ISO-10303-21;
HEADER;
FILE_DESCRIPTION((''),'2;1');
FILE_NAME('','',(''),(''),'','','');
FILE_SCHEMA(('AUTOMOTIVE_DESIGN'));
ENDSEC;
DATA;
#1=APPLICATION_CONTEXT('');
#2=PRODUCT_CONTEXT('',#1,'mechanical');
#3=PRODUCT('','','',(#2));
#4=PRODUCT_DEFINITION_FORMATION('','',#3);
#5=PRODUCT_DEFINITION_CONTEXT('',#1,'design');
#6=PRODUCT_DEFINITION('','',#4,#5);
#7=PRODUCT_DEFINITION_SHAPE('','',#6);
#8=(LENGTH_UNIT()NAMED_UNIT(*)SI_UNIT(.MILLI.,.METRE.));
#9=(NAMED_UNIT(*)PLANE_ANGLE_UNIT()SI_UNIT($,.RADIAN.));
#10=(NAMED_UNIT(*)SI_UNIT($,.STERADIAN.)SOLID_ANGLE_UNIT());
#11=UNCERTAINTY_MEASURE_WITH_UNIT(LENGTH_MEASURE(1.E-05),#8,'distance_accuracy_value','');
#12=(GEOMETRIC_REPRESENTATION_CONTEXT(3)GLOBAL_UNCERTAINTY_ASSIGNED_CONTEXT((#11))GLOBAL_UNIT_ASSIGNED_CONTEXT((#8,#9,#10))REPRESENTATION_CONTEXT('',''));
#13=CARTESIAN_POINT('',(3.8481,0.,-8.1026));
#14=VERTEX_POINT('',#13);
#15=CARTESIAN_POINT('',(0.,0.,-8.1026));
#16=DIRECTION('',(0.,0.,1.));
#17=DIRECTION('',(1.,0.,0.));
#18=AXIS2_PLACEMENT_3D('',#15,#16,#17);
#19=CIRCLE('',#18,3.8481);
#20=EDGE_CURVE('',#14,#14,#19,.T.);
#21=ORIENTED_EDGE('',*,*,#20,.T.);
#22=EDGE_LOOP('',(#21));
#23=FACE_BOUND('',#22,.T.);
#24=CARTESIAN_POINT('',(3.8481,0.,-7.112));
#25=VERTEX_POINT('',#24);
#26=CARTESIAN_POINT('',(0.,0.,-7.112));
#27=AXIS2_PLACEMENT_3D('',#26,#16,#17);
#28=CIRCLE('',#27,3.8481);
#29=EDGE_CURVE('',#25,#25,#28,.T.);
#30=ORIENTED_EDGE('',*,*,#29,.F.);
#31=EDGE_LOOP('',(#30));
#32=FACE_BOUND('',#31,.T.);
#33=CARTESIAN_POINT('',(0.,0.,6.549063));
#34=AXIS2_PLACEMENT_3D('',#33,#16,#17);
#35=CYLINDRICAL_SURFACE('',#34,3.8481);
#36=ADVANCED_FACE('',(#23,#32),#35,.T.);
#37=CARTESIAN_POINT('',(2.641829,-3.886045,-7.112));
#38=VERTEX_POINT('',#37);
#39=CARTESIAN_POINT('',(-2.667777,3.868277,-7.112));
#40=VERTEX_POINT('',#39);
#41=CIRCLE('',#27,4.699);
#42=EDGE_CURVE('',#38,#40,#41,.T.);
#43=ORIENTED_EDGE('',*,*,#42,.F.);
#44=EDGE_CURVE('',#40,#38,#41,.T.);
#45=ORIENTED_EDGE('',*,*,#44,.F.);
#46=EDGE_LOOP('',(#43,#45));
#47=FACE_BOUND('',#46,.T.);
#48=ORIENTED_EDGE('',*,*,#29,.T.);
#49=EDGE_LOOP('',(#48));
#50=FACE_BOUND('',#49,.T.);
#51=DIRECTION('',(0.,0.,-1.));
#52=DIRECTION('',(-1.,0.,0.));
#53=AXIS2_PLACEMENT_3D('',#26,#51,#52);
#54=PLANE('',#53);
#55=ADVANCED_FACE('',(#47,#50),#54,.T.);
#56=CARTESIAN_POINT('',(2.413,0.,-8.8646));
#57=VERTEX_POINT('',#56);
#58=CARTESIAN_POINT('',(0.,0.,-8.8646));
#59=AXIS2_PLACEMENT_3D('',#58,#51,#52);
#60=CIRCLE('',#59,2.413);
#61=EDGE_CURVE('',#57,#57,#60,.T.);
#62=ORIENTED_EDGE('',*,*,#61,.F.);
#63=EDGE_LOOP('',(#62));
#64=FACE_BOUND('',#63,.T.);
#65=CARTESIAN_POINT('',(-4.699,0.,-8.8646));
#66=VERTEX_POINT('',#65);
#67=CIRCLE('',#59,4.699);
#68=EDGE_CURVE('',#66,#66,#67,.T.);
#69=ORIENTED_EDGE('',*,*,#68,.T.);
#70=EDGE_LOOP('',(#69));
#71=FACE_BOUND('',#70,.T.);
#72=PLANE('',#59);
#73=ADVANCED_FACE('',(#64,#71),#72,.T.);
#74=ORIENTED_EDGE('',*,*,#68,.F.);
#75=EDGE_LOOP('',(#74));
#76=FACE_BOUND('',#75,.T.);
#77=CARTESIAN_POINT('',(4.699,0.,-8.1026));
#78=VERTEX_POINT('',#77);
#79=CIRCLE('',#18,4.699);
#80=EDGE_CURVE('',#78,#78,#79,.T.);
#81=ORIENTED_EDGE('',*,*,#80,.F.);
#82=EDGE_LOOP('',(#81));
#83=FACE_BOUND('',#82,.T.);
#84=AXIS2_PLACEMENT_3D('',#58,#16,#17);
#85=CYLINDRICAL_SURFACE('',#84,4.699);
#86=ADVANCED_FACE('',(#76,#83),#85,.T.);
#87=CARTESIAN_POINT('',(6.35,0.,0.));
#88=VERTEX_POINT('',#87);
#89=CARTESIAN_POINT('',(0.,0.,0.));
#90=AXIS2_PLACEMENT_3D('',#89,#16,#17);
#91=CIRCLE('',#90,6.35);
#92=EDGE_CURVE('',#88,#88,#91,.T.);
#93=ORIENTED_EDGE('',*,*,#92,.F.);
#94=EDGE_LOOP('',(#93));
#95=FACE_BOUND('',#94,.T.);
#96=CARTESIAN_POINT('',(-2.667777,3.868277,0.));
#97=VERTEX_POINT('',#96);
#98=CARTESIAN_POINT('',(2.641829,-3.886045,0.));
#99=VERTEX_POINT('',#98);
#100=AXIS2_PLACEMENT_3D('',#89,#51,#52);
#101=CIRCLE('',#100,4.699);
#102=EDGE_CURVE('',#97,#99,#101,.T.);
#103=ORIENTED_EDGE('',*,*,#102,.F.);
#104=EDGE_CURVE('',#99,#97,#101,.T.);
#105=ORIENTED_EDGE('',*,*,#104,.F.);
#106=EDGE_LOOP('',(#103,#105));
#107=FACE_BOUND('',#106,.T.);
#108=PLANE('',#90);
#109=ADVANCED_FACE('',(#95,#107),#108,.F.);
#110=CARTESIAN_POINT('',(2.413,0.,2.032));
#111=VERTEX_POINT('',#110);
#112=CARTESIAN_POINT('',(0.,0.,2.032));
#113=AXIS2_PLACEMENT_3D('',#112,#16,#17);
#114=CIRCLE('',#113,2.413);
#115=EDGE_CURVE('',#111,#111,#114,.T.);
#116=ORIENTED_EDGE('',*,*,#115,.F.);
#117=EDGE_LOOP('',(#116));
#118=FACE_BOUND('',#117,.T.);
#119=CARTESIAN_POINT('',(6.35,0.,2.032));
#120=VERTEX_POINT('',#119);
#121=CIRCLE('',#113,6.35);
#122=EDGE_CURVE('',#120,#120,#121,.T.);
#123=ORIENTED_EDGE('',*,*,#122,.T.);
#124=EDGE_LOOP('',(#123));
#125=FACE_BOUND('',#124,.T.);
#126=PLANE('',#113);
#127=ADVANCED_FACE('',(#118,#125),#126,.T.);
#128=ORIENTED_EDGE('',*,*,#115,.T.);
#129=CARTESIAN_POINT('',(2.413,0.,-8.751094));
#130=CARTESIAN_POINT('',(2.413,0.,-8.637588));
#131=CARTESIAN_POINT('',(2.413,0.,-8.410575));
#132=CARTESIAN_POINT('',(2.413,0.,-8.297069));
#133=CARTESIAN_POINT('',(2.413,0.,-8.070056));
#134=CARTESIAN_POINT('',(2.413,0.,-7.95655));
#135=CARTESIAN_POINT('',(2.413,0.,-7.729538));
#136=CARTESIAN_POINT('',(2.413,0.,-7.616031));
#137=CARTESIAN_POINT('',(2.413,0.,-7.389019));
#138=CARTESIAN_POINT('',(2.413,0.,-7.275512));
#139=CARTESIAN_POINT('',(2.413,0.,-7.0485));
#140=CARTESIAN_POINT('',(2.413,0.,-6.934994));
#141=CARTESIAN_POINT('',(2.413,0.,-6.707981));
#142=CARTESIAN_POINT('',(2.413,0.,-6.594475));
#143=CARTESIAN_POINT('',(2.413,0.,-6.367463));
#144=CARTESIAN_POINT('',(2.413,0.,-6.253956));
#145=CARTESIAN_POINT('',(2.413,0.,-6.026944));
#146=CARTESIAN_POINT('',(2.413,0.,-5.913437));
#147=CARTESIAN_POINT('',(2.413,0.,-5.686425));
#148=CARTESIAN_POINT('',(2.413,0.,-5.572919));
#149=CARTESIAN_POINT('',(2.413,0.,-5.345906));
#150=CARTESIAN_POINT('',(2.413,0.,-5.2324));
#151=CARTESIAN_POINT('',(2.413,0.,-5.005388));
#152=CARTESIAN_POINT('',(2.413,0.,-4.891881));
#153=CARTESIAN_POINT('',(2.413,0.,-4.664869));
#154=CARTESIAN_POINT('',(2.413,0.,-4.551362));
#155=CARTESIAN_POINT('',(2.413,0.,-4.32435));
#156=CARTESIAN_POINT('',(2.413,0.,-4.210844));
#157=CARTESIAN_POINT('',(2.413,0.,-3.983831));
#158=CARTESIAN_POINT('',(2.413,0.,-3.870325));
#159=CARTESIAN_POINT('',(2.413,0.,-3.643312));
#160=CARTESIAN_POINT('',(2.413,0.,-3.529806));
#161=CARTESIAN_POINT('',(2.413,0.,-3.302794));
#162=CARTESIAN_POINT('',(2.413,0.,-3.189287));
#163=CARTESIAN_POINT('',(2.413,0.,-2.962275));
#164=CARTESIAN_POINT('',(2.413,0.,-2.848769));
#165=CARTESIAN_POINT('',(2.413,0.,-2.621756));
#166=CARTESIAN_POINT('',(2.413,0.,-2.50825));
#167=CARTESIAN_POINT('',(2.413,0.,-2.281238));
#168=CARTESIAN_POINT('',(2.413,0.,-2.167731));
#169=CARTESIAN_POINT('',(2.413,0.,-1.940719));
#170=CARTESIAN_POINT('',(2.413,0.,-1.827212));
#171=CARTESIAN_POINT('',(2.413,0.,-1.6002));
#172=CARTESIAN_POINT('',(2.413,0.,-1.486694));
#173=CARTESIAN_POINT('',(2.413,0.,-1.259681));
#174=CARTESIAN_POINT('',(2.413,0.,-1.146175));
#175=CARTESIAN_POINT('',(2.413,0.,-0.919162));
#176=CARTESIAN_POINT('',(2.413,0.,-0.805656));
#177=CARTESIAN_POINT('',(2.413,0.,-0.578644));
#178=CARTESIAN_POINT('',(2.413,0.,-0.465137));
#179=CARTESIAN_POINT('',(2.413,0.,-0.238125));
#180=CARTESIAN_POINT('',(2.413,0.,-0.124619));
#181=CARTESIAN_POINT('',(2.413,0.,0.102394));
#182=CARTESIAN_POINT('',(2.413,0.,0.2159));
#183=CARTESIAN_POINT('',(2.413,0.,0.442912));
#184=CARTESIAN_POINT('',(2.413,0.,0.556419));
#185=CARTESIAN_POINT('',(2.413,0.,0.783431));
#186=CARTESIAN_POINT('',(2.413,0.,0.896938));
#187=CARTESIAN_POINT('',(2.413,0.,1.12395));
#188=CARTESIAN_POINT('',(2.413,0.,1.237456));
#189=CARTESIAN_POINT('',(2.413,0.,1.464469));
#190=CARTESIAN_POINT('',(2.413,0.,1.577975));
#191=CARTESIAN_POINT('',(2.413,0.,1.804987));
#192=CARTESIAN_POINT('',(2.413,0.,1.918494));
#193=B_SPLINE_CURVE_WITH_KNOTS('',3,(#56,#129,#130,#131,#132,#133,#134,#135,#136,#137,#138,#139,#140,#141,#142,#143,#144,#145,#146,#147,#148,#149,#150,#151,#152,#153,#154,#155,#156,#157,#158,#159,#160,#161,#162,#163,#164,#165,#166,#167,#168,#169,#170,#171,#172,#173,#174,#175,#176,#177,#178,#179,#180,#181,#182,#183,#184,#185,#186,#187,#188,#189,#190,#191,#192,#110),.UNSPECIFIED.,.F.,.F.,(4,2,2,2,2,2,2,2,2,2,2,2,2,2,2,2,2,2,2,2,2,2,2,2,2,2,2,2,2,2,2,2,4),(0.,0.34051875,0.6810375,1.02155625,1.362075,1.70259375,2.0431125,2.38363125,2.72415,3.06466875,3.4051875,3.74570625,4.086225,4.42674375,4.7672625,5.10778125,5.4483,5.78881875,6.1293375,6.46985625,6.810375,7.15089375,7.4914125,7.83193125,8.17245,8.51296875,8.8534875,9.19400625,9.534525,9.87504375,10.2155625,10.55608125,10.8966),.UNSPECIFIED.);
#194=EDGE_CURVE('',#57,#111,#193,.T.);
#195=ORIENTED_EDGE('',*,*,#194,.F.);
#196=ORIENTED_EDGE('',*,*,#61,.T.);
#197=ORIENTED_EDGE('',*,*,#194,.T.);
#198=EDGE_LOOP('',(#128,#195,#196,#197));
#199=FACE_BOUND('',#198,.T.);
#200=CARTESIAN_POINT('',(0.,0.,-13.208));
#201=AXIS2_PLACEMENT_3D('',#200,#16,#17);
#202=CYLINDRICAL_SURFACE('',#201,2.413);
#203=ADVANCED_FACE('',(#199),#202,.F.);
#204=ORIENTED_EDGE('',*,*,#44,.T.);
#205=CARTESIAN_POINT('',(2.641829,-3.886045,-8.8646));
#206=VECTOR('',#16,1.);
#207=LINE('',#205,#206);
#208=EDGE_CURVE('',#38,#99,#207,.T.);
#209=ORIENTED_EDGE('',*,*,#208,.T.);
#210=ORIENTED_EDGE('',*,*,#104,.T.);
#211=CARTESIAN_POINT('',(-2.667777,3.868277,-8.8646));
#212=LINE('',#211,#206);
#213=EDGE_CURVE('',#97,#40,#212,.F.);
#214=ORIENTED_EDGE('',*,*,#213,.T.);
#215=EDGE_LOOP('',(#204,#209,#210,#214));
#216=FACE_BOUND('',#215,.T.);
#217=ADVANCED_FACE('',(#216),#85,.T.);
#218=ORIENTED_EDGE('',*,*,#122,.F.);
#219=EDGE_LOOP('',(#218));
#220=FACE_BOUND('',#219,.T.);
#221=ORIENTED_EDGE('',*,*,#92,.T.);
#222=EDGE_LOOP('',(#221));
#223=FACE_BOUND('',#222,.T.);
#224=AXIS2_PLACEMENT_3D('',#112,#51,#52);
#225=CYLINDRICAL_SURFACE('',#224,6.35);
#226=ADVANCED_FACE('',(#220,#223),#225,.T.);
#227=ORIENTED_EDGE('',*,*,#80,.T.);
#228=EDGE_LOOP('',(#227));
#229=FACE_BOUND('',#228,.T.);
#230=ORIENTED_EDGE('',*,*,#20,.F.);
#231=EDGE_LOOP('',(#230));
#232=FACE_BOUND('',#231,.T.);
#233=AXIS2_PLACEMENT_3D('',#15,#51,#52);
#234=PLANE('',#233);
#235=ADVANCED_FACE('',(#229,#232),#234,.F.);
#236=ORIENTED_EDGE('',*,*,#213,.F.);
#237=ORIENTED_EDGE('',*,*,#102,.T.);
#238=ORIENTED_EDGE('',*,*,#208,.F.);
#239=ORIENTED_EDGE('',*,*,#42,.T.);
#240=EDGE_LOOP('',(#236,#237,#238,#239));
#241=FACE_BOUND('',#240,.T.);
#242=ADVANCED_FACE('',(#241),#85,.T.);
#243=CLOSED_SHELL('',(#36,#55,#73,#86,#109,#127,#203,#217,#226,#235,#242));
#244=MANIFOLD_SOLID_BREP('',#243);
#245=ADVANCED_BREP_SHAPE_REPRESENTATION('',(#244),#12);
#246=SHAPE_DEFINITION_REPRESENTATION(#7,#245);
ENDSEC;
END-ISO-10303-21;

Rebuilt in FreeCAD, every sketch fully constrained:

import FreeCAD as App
import Part
import Sketcher
Q = App.Units.Quantity

doc = App.newDocument("Part")
params = doc.addObject("Spreadsheet::Sheet", "Params")
for row, (alias, value) in enumerate([
    ("sketch1_diameter", "0.5 in"),
    ("pad1_length", "0.08 in"),
    ("sketch2_diameter", "0.37 in"),
    ("pad2_length", "0.349 in"),
    ("sketch3_height", "0.039 in"),
    ("groove_angle", "360 deg"),
    ("sketch4_diameter", "0.19 in"),
    ("pocket1_length", "0.6 in"),
], start=1):
    params.set(f"A{row}", alias)
    params.set(f"B{row}", "=" + value)
    params.setAlias(f"B{row}", alias)

body = doc.addObject("PartDesign::Body", "Body")

# Sketch on XY plane
sketch1 = doc.addObject("Sketcher::SketchObject", "Sketch")
body.addObject(sketch1)
sketch1.AttachmentSupport = (doc.XY_Plane, [""])
sketch1.MapMode = "FlatFace"
sketch1.addGeometry(Part.Circle(App.Vector(0, 0, 0), App.Vector(0, 0, 1), 6), False)
sketch1.addConstraint([
    Sketcher.Constraint("Coincident", 0, 3, -1, 1),
    Sketcher.Constraint("Diameter", 0, Q("0.5 in")),
])
sketch1.setExpression("Constraints[1]", "Params.sketch1_diameter")
pad1 = doc.addObject("PartDesign::Pad", "Pad")
body.addObject(pad1)
pad1.Profile = sketch1
pad1.setExpression("Length", "Params.pad1_length")

# Sketch on XY plane
sketch2 = doc.addObject("Sketcher::SketchObject", "Sketch001")
body.addObject(sketch2)
sketch2.AttachmentSupport = (doc.XY_Plane, [""])
sketch2.MapMode = "FlatFace"
sketch2.addGeometry(Part.Circle(App.Vector(0, 0, 0), App.Vector(0, 0, 1), 4.7), False)
sketch2.addConstraint([
    Sketcher.Constraint("Coincident", 0, 3, -1, 1),
    Sketcher.Constraint("Diameter", 0, Q("0.37 in")),
])
sketch2.setExpression("Constraints[1]", "Params.sketch2_diameter")
pad2 = doc.addObject("PartDesign::Pad", "Pad001")
body.addObject(pad2)
pad2.Profile = sketch2
pad2.setExpression("Length", "Params.pad2_length")
pad2.Reversed = True

# Sketch on YZ plane
sketch3 = doc.addObject("Sketcher::SketchObject", "Sketch002")
body.addObject(sketch3)
sketch3.AttachmentSupport = (doc.YZ_Plane, [""])
sketch3.MapMode = "FlatFace"
sketch3.addGeometry([
    Part.LineSegment(App.Vector(4.7, -7.1, 0), App.Vector(3.8, -7.1, 0)),
    Part.LineSegment(App.Vector(3.8, -7.1, 0), App.Vector(3.8, -8.1, 0)),
    Part.LineSegment(App.Vector(3.8, -8.1, 0), App.Vector(4.7, -8.1, 0)),
    Part.LineSegment(App.Vector(4.7, -8.1, 0), App.Vector(4.7, -7.1, 0)),
], False)
sketch3.addConstraint([
    Sketcher.Constraint("Coincident", 0, 2, 1, 1),
    Sketcher.Constraint("Coincident", 1, 2, 2, 1),
    Sketcher.Constraint("Coincident", 2, 2, 3, 1),
    Sketcher.Constraint("Coincident", 3, 2, 0, 1),
    Sketcher.Constraint("Horizontal", 0),
    Sketcher.Constraint("Vertical", 1),
    Sketcher.Constraint("Horizontal", 2),
    Sketcher.Constraint("Vertical", 3),
    Sketcher.Constraint("DistanceY", 1, 2, 1, 1, Q("0.039 in")),
    Sketcher.Constraint("DistanceY", 0, 2, -1, 1, Q("0.28 in")),
    Sketcher.Constraint("DistanceX", 0, 2, 0, 1, Q("0.0335 in")),
    Sketcher.Constraint("DistanceX", -1, 1, 2, 2, Q("0.185 in")),
])
sketch3.setExpression("Constraints[8]", "Params.sketch3_height")
groove = doc.addObject("PartDesign::Groove", "Groove")
body.addObject(groove)
groove.Profile = sketch3
groove.ReferenceAxis = (sketch3, ["V_Axis"])
groove.setExpression("Angle", "Params.groove_angle")

# Sketch on XY plane
sketch4 = doc.addObject("Sketcher::SketchObject", "Sketch003")
body.addObject(sketch4)
sketch4.AttachmentSupport = (doc.XY_Plane, [""])
sketch4.MapMode = "FlatFace"
sketch4.AttachmentOffset = App.Placement(App.Vector(0, 0, 0.08 * 25.4), App.Rotation())
sketch4.addGeometry(Part.Circle(App.Vector(0, 0, 0), App.Vector(0, 0, 1), 2.4), False)
sketch4.addConstraint([
    Sketcher.Constraint("Coincident", 0, 3, -1, 1),
    Sketcher.Constraint("Diameter", 0, Q("0.19 in")),
])
sketch4.setExpression("Constraints[1]", "Params.sketch4_diameter")
pocket1 = doc.addObject("PartDesign::Pocket", "Pocket")
body.addObject(pocket1)
pocket1.Profile = sketch4
pocket1.setExpression("Length", "Params.pocket1_length")

doc.recompute()
